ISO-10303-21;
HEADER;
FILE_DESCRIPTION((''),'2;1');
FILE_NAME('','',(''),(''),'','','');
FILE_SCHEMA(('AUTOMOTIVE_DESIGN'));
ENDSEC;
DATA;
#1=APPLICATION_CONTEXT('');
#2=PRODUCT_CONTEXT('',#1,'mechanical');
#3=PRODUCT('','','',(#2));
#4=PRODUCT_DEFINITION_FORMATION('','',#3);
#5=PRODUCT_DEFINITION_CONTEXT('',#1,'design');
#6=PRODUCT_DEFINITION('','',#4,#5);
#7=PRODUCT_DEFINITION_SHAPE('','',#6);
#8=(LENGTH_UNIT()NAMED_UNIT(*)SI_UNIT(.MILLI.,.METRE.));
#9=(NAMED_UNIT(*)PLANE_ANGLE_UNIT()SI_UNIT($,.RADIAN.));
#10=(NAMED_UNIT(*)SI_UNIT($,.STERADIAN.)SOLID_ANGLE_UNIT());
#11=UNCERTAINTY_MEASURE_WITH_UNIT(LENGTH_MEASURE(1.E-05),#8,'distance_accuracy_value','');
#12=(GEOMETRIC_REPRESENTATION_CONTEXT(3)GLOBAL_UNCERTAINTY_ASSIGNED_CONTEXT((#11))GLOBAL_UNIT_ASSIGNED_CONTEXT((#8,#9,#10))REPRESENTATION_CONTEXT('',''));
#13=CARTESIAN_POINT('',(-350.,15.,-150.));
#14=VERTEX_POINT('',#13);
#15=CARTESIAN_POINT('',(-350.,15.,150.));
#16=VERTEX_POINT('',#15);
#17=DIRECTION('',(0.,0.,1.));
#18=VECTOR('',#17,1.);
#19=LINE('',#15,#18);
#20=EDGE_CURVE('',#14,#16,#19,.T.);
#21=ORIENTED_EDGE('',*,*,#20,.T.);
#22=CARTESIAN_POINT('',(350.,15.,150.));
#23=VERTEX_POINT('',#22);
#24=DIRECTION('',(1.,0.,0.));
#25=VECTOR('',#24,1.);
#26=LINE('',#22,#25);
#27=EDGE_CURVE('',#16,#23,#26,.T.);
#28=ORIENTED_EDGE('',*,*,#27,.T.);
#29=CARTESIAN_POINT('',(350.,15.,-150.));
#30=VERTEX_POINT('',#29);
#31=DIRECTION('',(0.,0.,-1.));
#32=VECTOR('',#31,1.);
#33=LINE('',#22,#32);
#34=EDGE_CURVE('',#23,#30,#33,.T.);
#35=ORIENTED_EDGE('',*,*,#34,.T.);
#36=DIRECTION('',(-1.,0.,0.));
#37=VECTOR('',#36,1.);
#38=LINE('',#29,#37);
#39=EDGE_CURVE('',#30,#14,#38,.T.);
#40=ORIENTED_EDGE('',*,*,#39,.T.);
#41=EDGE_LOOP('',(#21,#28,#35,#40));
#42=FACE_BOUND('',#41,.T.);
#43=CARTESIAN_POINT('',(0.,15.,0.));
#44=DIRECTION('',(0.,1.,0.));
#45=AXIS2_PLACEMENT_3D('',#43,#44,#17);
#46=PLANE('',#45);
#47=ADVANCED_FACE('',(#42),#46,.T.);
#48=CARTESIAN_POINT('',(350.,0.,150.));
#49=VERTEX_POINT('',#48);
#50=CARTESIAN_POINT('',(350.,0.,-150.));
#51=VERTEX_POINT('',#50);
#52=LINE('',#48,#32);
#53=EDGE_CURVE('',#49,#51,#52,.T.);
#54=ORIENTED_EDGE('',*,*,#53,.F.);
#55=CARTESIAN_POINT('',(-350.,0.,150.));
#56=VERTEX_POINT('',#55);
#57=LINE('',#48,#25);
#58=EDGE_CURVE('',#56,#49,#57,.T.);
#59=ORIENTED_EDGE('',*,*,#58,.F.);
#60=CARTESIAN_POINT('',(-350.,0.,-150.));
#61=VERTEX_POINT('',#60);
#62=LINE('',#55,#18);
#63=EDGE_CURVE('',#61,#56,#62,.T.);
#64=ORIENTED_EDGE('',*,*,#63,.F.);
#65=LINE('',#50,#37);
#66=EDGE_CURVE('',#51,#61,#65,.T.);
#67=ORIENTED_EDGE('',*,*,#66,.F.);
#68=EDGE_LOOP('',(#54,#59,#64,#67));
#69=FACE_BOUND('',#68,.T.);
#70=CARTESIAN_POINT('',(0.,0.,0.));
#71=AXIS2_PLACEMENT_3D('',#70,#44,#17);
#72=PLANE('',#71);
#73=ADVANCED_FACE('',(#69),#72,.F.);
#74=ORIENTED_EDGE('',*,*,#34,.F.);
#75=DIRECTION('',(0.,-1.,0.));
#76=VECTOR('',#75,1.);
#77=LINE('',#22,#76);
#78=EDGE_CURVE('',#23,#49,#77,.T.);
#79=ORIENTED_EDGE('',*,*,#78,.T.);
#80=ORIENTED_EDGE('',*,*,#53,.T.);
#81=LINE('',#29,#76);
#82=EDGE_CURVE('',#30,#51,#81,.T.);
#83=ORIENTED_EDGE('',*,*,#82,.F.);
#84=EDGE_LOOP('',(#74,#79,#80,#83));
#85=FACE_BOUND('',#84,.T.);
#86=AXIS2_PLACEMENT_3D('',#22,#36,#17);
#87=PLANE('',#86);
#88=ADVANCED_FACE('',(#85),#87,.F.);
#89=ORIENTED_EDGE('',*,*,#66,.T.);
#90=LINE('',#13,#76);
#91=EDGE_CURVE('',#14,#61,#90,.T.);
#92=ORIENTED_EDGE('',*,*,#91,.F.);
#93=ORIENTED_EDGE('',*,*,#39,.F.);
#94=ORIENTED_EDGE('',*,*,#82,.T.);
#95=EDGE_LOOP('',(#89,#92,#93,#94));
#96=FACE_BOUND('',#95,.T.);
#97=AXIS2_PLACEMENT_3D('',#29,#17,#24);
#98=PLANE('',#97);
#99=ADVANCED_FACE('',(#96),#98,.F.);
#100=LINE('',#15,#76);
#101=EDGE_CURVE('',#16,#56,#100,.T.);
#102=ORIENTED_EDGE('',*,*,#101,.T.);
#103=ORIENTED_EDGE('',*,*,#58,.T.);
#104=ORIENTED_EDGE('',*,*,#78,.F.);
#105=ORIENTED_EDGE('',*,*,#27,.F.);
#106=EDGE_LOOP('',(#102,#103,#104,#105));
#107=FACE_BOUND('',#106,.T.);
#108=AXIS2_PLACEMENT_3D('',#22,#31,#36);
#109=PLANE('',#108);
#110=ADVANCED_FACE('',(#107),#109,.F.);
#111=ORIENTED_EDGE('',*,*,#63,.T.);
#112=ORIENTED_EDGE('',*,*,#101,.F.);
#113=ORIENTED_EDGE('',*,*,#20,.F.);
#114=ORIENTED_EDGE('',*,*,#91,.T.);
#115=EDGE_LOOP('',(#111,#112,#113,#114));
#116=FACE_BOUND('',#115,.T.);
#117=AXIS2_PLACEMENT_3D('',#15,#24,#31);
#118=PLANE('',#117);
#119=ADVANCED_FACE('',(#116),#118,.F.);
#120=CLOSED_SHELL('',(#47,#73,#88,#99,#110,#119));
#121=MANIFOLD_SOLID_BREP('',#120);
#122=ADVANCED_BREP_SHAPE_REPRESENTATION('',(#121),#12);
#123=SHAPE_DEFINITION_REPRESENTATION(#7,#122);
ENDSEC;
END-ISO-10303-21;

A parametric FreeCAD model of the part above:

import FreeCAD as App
import Part
import Sketcher


def add_polygon(sketch, points):
    """Adds a closed chain of lines whose ends are joined by coincident constraints."""
    first, n = sketch.GeometryCount, len(points)
    for a, b in zip(points, points[1:] + points[:1]):
        sketch.addGeometry(Part.LineSegment(App.Vector(*a, 0), App.Vector(*b, 0)), False)
    for i in range(n):
        sketch.addConstraint(Sketcher.Constraint("Coincident", first + i, 2, first + (i + 1) % n, 1))

doc = App.newDocument("Part")
body = doc.addObject("PartDesign::Body", "Body")

# Sketch on XZ plane
sketch1 = body.newObject("Sketcher::SketchObject", "Sketch")
sketch1.AttachmentSupport = (doc.getObject("XZ_Plane"), [""])
sketch1.MapMode = "FlatFace"
add_polygon(sketch1, [(-350, -150), (-350, 150), (350, 150), (350, -150)])  # lines 0-3
sketch1.addConstraint([
    Sketcher.Constraint("Vertical", 0),
    Sketcher.Constraint("Horizontal", 1),
    Sketcher.Constraint("Vertical", 2),
    Sketcher.Constraint("Horizontal", 3),
    Sketcher.Constraint("Symmetric", 0, 2, 2, 2, -1, 1),
    Sketcher.Constraint("DistanceX", 1, 1, 1, 2, 700.0),
    Sketcher.Constraint("DistanceY", 0, 1, 0, 2, 300.0),
])
pad1 = body.newObject("PartDesign::Pad", "Pad")
pad1.Profile = sketch1
pad1.Length = 15
pad1.Reversed = True

doc.recompute()
